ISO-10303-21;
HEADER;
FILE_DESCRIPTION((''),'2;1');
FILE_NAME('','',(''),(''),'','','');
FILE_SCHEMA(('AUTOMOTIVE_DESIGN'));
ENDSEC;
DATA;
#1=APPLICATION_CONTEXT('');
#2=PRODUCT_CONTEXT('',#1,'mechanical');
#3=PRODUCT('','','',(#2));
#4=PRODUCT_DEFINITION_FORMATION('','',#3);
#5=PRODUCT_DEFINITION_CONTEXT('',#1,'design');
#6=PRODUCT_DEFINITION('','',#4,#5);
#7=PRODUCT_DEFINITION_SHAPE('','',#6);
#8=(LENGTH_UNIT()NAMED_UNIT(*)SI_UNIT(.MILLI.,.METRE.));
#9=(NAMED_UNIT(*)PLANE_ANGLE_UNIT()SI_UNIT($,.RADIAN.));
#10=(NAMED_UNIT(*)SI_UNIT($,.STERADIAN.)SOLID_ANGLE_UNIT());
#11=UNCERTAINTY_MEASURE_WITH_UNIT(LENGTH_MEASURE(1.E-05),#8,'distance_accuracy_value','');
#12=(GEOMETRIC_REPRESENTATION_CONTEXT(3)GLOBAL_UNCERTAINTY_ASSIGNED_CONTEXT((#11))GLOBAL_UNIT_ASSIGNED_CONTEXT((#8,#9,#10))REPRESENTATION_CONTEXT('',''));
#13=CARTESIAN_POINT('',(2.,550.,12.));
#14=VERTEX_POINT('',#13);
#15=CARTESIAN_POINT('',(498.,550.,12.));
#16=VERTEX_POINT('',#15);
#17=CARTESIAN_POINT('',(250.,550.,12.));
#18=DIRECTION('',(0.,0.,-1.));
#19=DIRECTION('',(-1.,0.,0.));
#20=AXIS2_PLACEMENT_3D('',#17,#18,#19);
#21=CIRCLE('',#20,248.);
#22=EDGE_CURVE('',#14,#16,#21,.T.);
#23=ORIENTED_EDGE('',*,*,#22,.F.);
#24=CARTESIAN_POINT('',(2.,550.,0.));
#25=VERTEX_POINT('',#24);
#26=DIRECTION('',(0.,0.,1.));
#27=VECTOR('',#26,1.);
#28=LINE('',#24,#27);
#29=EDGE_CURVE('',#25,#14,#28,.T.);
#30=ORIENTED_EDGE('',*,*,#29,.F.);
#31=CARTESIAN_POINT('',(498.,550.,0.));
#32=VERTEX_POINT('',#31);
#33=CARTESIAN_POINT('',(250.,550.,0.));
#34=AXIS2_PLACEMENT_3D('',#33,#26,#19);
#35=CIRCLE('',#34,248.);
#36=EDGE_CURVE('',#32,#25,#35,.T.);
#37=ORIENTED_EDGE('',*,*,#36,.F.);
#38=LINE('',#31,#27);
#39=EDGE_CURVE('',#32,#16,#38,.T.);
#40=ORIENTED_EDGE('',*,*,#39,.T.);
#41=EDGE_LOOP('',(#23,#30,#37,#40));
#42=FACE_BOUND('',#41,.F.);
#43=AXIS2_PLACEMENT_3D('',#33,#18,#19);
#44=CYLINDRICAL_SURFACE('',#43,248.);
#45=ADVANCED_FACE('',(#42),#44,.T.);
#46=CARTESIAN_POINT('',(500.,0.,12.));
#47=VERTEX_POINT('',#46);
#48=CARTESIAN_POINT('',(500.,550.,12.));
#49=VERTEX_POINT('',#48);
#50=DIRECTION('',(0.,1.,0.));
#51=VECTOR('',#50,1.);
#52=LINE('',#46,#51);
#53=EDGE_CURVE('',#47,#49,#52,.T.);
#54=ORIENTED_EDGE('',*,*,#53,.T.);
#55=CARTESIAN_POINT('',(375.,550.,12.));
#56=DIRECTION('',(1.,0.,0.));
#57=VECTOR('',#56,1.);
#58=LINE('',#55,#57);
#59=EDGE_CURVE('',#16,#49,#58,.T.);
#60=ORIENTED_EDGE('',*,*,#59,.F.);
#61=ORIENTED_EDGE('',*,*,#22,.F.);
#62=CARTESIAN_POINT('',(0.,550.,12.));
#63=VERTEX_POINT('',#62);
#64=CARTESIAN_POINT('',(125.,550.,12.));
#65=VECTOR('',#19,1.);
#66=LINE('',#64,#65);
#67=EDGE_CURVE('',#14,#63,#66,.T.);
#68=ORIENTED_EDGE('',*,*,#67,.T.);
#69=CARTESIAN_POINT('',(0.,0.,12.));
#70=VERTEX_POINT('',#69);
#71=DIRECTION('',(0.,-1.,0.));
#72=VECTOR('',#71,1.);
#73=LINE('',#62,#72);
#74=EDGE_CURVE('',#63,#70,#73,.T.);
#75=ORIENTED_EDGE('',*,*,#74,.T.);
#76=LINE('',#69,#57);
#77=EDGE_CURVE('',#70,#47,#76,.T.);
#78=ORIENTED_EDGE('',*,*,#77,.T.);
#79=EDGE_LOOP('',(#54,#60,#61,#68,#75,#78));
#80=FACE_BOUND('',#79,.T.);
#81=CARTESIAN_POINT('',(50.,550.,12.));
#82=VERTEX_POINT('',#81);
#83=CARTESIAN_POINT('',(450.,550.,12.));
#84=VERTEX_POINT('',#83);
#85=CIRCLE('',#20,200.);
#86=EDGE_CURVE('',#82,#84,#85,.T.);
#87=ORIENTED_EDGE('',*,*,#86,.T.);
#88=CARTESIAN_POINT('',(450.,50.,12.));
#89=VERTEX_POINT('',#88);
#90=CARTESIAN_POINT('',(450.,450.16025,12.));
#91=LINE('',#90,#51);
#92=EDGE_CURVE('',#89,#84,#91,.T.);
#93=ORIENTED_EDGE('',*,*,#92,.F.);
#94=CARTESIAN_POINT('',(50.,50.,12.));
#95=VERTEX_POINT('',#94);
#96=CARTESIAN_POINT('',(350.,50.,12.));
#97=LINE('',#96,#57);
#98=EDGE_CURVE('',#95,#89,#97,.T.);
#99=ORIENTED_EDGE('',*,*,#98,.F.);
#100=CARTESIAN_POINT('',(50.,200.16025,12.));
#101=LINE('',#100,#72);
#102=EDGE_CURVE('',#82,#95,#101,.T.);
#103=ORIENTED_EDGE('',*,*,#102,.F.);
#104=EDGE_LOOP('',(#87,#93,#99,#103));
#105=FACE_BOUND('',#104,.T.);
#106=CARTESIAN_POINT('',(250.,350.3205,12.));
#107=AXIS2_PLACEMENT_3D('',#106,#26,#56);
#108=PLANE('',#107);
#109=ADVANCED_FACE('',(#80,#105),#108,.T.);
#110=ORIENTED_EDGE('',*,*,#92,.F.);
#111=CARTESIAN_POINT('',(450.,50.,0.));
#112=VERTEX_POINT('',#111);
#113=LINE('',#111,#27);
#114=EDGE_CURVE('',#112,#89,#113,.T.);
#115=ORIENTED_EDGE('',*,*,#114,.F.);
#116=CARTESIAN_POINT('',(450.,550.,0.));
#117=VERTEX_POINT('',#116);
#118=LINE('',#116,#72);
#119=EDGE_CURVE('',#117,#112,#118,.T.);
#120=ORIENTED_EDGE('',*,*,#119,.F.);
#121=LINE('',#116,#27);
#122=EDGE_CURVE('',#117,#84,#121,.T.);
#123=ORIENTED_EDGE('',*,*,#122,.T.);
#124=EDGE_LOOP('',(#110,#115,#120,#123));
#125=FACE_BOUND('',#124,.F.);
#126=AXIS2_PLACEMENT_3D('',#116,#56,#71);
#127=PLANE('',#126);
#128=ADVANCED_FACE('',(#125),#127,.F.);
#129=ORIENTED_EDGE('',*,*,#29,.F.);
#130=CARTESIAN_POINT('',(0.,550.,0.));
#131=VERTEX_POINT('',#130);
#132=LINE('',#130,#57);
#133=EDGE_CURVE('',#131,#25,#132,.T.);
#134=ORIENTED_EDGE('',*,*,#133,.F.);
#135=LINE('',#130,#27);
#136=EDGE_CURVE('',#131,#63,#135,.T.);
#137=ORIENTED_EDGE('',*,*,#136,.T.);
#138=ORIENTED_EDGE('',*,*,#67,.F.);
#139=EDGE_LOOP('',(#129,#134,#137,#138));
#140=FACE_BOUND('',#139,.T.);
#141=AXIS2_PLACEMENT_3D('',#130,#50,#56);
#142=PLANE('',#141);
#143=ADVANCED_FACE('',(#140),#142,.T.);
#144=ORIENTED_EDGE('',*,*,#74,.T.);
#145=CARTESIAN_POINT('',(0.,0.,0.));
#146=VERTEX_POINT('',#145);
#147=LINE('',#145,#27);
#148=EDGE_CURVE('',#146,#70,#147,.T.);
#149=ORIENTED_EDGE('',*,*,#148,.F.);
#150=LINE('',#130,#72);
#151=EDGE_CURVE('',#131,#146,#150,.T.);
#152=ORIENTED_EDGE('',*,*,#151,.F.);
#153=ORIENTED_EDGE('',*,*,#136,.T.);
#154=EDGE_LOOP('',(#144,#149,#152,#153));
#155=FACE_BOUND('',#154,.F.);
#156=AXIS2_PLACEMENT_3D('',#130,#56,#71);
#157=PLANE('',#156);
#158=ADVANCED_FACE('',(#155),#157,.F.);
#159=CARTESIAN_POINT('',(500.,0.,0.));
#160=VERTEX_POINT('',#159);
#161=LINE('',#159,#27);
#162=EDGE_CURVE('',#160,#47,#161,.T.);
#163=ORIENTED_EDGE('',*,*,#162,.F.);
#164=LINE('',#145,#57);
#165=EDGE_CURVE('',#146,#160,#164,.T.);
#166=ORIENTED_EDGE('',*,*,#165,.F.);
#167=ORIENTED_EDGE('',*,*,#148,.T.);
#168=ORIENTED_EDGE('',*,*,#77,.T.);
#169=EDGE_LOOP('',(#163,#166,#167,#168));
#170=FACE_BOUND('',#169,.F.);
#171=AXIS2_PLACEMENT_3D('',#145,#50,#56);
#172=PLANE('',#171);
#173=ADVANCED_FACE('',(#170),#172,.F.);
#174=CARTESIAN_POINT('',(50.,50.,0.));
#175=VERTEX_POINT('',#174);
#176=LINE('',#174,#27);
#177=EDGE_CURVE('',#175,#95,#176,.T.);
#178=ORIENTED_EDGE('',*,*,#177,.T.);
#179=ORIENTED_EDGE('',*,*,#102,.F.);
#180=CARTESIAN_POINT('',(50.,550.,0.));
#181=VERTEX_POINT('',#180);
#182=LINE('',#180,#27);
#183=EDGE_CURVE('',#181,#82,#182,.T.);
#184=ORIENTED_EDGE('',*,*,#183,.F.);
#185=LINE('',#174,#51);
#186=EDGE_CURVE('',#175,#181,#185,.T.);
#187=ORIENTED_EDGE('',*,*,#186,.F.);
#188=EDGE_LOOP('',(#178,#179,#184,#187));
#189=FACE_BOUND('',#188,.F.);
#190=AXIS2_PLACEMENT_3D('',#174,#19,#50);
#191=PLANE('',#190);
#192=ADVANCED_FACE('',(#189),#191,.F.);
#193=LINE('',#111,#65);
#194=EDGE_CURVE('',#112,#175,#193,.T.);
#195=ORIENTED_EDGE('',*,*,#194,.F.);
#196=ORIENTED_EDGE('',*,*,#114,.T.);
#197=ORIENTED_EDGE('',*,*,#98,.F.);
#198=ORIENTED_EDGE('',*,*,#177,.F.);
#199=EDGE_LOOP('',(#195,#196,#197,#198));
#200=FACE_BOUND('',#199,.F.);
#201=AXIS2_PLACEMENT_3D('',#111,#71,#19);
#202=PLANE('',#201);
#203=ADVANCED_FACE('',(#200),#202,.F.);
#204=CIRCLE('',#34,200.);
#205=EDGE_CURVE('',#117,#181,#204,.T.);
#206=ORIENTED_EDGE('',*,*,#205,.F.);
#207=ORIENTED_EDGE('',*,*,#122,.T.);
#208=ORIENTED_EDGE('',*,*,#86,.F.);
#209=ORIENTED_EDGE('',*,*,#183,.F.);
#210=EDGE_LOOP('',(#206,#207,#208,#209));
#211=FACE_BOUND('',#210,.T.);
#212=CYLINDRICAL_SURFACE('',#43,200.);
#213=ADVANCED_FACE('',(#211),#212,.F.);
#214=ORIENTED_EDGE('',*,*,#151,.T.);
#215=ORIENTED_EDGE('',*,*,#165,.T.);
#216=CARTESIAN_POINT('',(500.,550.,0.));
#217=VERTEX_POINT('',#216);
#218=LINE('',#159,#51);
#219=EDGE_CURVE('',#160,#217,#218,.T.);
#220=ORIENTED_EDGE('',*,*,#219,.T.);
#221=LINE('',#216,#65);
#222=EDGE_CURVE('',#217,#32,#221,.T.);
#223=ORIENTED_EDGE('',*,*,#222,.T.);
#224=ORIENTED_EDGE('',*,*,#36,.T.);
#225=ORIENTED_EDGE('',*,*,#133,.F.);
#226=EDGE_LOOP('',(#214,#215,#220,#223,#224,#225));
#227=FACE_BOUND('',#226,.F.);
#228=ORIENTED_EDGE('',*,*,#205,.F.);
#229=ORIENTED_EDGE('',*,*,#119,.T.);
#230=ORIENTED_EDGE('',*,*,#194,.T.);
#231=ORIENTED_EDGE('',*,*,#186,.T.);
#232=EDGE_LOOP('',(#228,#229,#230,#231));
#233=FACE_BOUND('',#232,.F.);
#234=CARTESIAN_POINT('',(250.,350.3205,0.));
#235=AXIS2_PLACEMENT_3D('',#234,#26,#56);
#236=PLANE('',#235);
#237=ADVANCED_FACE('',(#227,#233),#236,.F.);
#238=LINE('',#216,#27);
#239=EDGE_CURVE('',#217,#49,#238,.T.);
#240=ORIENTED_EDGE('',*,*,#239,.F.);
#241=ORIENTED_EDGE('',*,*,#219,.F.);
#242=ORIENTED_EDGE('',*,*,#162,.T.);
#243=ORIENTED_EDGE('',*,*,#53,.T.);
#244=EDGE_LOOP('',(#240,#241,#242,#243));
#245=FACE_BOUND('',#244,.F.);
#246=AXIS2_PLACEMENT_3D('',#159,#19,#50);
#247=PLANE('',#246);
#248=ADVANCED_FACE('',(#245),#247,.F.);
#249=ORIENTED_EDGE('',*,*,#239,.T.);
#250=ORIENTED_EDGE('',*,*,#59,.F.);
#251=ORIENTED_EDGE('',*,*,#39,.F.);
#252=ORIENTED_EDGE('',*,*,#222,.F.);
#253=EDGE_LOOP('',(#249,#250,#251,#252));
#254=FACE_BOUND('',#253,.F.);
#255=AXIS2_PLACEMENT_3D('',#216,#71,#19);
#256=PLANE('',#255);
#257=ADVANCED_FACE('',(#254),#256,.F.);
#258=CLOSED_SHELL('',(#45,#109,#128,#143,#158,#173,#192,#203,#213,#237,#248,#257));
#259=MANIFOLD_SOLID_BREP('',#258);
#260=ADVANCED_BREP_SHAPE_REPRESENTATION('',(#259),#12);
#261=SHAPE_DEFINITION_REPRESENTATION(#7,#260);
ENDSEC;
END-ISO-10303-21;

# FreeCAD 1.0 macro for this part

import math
import FreeCAD as App
import Part
import Sketcher
from FreeCAD import Vector
Q = App.Units.Quantity

doc = App.newDocument("Part")
body = doc.addObject("PartDesign::Body", "Body")

sketch1 = body.newObject("Sketcher::SketchObject", "Sketch")
sketch1.AttachmentSupport = (doc.getObject("XY_Plane"), [""])
sketch1.MapMode = "FlatFace"
sketch1.addGeometry(Part.LineSegment(Vector(0, 550, 0), Vector(0, 0, 0)), False)
sketch1.addGeometry(Part.LineSegment(Vector(0, 0, 0), Vector(500, 0, 0)), False)
sketch1.addGeometry(Part.LineSegment(Vector(500, 0, 0), Vector(500, 550, 0)), False)
sketch1.addGeometry(Part.ArcOfCircle(Part.Circle(Vector(250, 550, 0), Vector(0, 0, 1), 250), math.radians(0), math.radians(180)), False)
sketch1.addConstraint(Sketcher.Constraint("Coincident", 0, 2, 1, 1))
sketch1.addConstraint(Sketcher.Constraint("Coincident", 1, 2, 2, 1))
sketch1.addConstraint(Sketcher.Constraint("Tangent", 2, 2, 3, 1))
sketch1.addConstraint(Sketcher.Constraint("Tangent", 3, 2, 0, 1))
sketch1.addConstraint(Sketcher.Constraint("Vertical", 0))
sketch1.addConstraint(Sketcher.Constraint("Horizontal", 1))
sketch1.addConstraint(Sketcher.Constraint("Vertical", 2))
sketch1.addConstraint(Sketcher.Constraint("Coincident", 0, 2, -1, 1))
sketch1.addConstraint(Sketcher.Constraint("Radius", 3, Q("250 mm")))
sketch1.addConstraint(Sketcher.Constraint("DistanceY", 0, 2, 0, 1, Q("550 mm")))
pad1 = body.newObject("PartDesign::Pad", "Pad")
pad1.Profile = sketch1
pad1.Length = 12

sketch2 = body.newObject("Sketcher::SketchObject", "Sketch001")
sketch2.AttachmentSupport = (doc.getObject("XY_Plane"), [""])
sketch2.MapMode = "FlatFace"
sketch2.addGeometry(Part.LineSegment(Vector(2, 550, 0), Vector(0, 550, 0)), False)
sketch2.addGeometry(Part.ArcOfCircle(Part.Circle(Vector(250, 550, 0), Vector(0, 0, 1), 250), math.radians(0), math.radians(180)), False)
sketch2.addGeometry(Part.LineSegment(Vector(500, 550, 0), Vector(498, 550, 0)), False)
sketch2.addGeometry(Part.ArcOfCircle(Part.Circle(Vector(250, 550, 0), Vector(0, 0, 1), 248), math.radians(0), math.radians(180)), False)
sketch2.addConstraint(Sketcher.Constraint("Coincident", 0, 2, 1, 2))
sketch2.addConstraint(Sketcher.Constraint("Coincident", 1, 1, 2, 1))
sketch2.addConstraint(Sketcher.Constraint("Coincident", 2, 2, 3, 1))
sketch2.addConstraint(Sketcher.Constraint("Coincident", 3, 2, 0, 1))
sketch2.addConstraint(Sketcher.Constraint("Horizontal", 0))
sketch2.addConstraint(Sketcher.Constraint("Horizontal", 2))
sketch2.addConstraint(Sketcher.Constraint("Coincident", 3, 3, 1, 3))
sketch2.addConstraint(Sketcher.Constraint("PointOnObject", 0, 2, -2))
sketch2.addConstraint(Sketcher.Constraint("Horizontal", 3, 3, 0, 2))
sketch2.addConstraint(Sketcher.Constraint("Horizontal", 0, 2, 1, 1))
sketch2.addConstraint(Sketcher.Constraint("Radius", 1, Q("250 mm")))
sketch2.addConstraint(Sketcher.Constraint("Radius", 3, Q("248 mm")))
sketch2.addConstraint(Sketcher.Constraint("DistanceY", -1, 1, 1, 3, Q("550 mm")))
pocket1 = body.newObject("PartDesign::Pocket", "Pocket")
pocket1.Profile = sketch2
pocket1.Length = 184.2167
pocket1.Reversed = True

sketch3 = body.newObject("Sketcher::SketchObject", "Sketch002")
sketch3.AttachmentSupport = (doc.getObject("XY_Plane"), [""])
sketch3.MapMode = "FlatFace"
sketch3.addGeometry(Part.LineSegment(Vector(450, 550, 0), Vector(450, 50, 0)), False)
sketch3.addGeometry(Part.LineSegment(Vector(450, 50, 0), Vector(50, 50, 0)), False)
sketch3.addGeometry(Part.LineSegment(Vector(50, 50, 0), Vector(50, 550, 0)), False)
sketch3.addGeometry(Part.ArcOfCircle(Part.Circle(Vector(250, 550, 0), Vector(0, 0, 1), 200), math.radians(0), math.radians(180)), False)
sketch3.addConstraint(Sketcher.Constraint("Coincident", 0, 2, 1, 1))
sketch3.addConstraint(Sketcher.Constraint("Coincident", 1, 2, 2, 1))
sketch3.addConstraint(Sketcher.Constraint("Tangent", 2, 2, 3, 2))
sketch3.addConstraint(Sketcher.Constraint("Tangent", 3, 1, 0, 1))
sketch3.addConstraint(Sketcher.Constraint("Vertical", 0))
sketch3.addConstraint(Sketcher.Constraint("Horizontal", 1))
sketch3.addConstraint(Sketcher.Constraint("Vertical", 2))
sketch3.addConstraint(Sketcher.Constraint("Radius", 3, Q("200 mm")))
sketch3.addConstraint(Sketcher.Constraint("DistanceY", 0, 2, 0, 1, Q("500 mm")))
sketch3.addConstraint(Sketcher.Constraint("DistanceX", -1, 1, 3, 3, Q("250 mm")))
sketch3.addConstraint(Sketcher.Constraint("DistanceY", -1, 1, 3, 3, Q("550 mm")))
pocket2 = body.newObject("PartDesign::Pocket", "Pocket001")
pocket2.Profile = sketch3
pocket2.Length = 568.3558
pocket2.Reversed = True

doc.recompute()
